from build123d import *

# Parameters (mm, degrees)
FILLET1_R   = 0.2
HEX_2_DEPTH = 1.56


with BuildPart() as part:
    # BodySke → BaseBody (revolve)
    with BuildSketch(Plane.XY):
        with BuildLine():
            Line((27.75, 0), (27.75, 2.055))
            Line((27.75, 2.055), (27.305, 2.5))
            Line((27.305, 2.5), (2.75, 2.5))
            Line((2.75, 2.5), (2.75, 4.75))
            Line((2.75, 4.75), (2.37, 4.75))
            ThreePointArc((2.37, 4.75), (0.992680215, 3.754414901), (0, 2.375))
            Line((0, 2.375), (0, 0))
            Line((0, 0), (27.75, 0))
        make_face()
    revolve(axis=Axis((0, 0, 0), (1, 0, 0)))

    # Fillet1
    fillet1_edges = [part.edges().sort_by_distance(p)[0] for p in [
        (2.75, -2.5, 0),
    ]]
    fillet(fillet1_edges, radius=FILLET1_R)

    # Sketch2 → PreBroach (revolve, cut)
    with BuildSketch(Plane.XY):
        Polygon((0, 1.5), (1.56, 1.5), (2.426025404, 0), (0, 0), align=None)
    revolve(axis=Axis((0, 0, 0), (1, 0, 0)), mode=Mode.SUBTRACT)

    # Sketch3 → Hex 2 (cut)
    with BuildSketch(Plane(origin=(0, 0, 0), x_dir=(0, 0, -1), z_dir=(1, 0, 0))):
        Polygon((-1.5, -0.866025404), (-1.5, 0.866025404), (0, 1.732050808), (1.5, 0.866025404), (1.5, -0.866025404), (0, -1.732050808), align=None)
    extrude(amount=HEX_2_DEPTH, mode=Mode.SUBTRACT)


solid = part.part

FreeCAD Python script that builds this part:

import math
import FreeCAD as App
import Part
import Sketcher
from FreeCAD import Vector
Q = App.Units.Quantity


def edges_at(feature, points):
    """Names of the edges that pass closest to the given points."""
    edges = feature.Shape.Edges
    near = lambda p: min(range(len(edges)), key=lambda i: edges[i].distToShape(Part.Vertex(*p))[0])
    return sorted({f"Edge{near(p) + 1}" for p in points})

doc = App.newDocument("Part")
body = doc.addObject("PartDesign::Body", "Body")

# Sketch on XY plane
sketch1 = body.newObject("Sketcher::SketchObject", "Sketch")
sketch1.AttachmentSupport = (doc.getObject("XY_Plane"), [""])
sketch1.MapMode = "FlatFace"
sketch1.addGeometry([
    Part.LineSegment(Vector(27.75, 0, 0), Vector(27.75, 2.055, 0)),  # 0
    Part.LineSegment(Vector(27.75, 2.055, 0), Vector(27.305, 2.5, 0)),  # 1
    Part.LineSegment(Vector(27.305, 2.5, 0), Vector(2.75, 2.5, 0)),  # 2
    Part.LineSegment(Vector(2.75, 2.5, 0), Vector(2.75, 4.75, 0)),  # 3
    Part.LineSegment(Vector(2.75, 4.75, 0), Vector(2.37, 4.75, 0)),  # 4
    Part.ArcOfCircle(Part.Circle(Vector(4.755016, 0, 0), Vector(0, 0, 1), 5.315148), math.radians(116.66162), math.radians(153.459129)),  # 5
    Part.LineSegment(Vector(0, 2.375, 0), Vector(0, 0, 0)),  # 6
    Part.LineSegment(Vector(0, 0, 0), Vector(27.75, 0, 0)),  # 7
], False)
sketch1.addConstraint([
    Sketcher.Constraint("Coincident", 0, 2, 1, 1),
    Sketcher.Constraint("Coincident", 1, 2, 2, 1),
    Sketcher.Constraint("Coincident", 2, 2, 3, 1),
    Sketcher.Constraint("Coincident", 3, 2, 4, 1),
    Sketcher.Constraint("Coincident", 4, 2, 5, 1),
    Sketcher.Constraint("Coincident", 5, 2, 6, 1),
    Sketcher.Constraint("Coincident", 6, 2, 7, 1),
    Sketcher.Constraint("Coincident", 7, 2, 0, 1),
    Sketcher.Constraint("Vertical", 0),
    Sketcher.Constraint("Horizontal", 2),
    Sketcher.Constraint("Vertical", 3),
    Sketcher.Constraint("Horizontal", 4),
    Sketcher.Constraint("Vertical", 6),
    Sketcher.Constraint("Horizontal", 7),
    Sketcher.Constraint("Coincident", 6, 2, -1, 1),
    Sketcher.Constraint("PointOnObject", 5, 3, -1),
    Sketcher.Constraint("Angle", 1, Q("135 deg")),
    Sketcher.Constraint("DistanceX", 2, 2, 0, 2, 25.0),
    Sketcher.Constraint("DistanceX", 4, 2, 4, 1, 0.38),
    Sketcher.Constraint("DistanceX", 7, 1, 7, 2, 27.75),
    Sketcher.Constraint("DistanceY", 3, 1, 3, 2, 2.25),
    Sketcher.Constraint("DistanceY", -1, 1, 1, 2, 2.5),
    Sketcher.Constraint("DistanceX", 2, 2, 2, 1, 24.555),
    Sketcher.Constraint("DistanceY", 6, 2, 6, 1, 2.375),
])
revolution = body.newObject("PartDesign::Revolution", "Revolution")
revolution.Profile = sketch1
revolution.ReferenceAxis = (sketch1, ["H_Axis"])
revolution.Angle = 360
doc.recompute()

fillet = body.newObject("PartDesign::Fillet", "Fillet")
fillet.Base = (revolution, edges_at(revolution, [(2.75, -2.5, 0)]))
fillet.Radius = 0.2

# Sketch on XY plane
sketch2 = body.newObject("Sketcher::SketchObject", "Sketch001")
sketch2.AttachmentSupport = (doc.getObject("XY_Plane"), [""])
sketch2.MapMode = "FlatFace"
sketch2.addGeometry([
    Part.LineSegment(Vector(1.56, 1.5, 0), Vector(0, 1.5, 0)),
    Part.LineSegment(Vector(0, 1.5, 0), Vector(0, 0, 0)),
    Part.LineSegment(Vector(0, 0, 0), Vector(2.426025, 0, 0)),
    Part.LineSegment(Vector(2.426025, 0, 0), Vector(1.56, 1.5, 0)),
], False)
sketch2.addConstraint([
    Sketcher.Constraint("Coincident", 0, 2, 1, 1),
    Sketcher.Constraint("Coincident", 1, 2, 2, 1),
    Sketcher.Constraint("Coincident", 2, 2, 3, 1),
    Sketcher.Constraint("Coincident", 3, 2, 0, 1),
    Sketcher.Constraint("Horizontal", 0),
    Sketcher.Constraint("Vertical", 1),
    Sketcher.Constraint("Horizontal", 2),
    Sketcher.Constraint("Coincident", 1, 2, -1, 1),
    Sketcher.Constraint("Angle", 3, Q("120 deg")),
    Sketcher.Constraint("DistanceY", 1, 2, 1, 1, 1.5),
    Sketcher.Constraint("DistanceX", 0, 2, 0, 1, 1.56),
])
groove = body.newObject("PartDesign::Groove", "Groove")
groove.Profile = sketch2
groove.ReferenceAxis = (sketch2, ["H_Axis"])
groove.Angle = 360

# Sketch on YZ plane
sketch3 = body.newObject("Sketcher::SketchObject", "Sketch002")
sketch3.AttachmentSupport = (doc.getObject("YZ_Plane"), [""])
sketch3.MapMode = "FlatFace"
sketch3.addGeometry([
    Part.LineSegment(Vector(0.866025, 1.5, 0), Vector(-0.866025, 1.5, 0)),  # 0
    Part.LineSegment(Vector(-0.866025, 1.5, 0), Vector(-1.732051, 0, 0)),  # 1
    Part.LineSegment(Vector(-1.732051, 0, 0), Vector(-0.866025, -1.5, 0)),  # 2
    Part.LineSegment(Vector(-0.866025, -1.5, 0), Vector(0.866025, -1.5, 0)),  # 3
    Part.LineSegment(Vector(0.866025, -1.5, 0), Vector(1.732051, 0, 0)),  # 4
    Part.LineSegment(Vector(1.732051, 0, 0), Vector(0.866025, 1.5, 0)),  # 5
], False)
sketch3.addConstraint([
    Sketcher.Constraint("Coincident", 0, 2, 1, 1),
    Sketcher.Constraint("Coincident", 1, 2, 2, 1),
    Sketcher.Constraint("Coincident", 2, 2, 3, 1),
    Sketcher.Constraint("Coincident", 3, 2, 4, 1),
    Sketcher.Constraint("Coincident", 4, 2, 5, 1),
    Sketcher.Constraint("Coincident", 5, 2, 0, 1),
    Sketcher.Constraint("Horizontal", 0),
    Sketcher.Constraint("Horizontal", 3),
    Sketcher.Constraint("Symmetric", 0, 2, 3, 2, -1, 1),
    Sketcher.Constraint("Symmetric", 1, 2, 4, 2, -1, 1),
    Sketcher.Constraint("PointOnObject", 1, 2, -1),
    Sketcher.Constraint("Parallel", 2, 5),
    Sketcher.Constraint("Vertical", 0, 2, 2, 2),
    Sketcher.Constraint("Angle", 1, Q("-120 deg")),
    Sketcher.Constraint("DistanceY", 2, 2, 0, 2, 3.0),
    Sketcher.Constraint("DistanceX", 0, 2, 0, 1, 1.732051),
])
pocket1 = body.newObject("PartDesign::Pocket", "Pocket")
pocket1.Profile = sketch3
pocket1.Length = 1.56
pocket1.Reversed = True

doc.recompute()
